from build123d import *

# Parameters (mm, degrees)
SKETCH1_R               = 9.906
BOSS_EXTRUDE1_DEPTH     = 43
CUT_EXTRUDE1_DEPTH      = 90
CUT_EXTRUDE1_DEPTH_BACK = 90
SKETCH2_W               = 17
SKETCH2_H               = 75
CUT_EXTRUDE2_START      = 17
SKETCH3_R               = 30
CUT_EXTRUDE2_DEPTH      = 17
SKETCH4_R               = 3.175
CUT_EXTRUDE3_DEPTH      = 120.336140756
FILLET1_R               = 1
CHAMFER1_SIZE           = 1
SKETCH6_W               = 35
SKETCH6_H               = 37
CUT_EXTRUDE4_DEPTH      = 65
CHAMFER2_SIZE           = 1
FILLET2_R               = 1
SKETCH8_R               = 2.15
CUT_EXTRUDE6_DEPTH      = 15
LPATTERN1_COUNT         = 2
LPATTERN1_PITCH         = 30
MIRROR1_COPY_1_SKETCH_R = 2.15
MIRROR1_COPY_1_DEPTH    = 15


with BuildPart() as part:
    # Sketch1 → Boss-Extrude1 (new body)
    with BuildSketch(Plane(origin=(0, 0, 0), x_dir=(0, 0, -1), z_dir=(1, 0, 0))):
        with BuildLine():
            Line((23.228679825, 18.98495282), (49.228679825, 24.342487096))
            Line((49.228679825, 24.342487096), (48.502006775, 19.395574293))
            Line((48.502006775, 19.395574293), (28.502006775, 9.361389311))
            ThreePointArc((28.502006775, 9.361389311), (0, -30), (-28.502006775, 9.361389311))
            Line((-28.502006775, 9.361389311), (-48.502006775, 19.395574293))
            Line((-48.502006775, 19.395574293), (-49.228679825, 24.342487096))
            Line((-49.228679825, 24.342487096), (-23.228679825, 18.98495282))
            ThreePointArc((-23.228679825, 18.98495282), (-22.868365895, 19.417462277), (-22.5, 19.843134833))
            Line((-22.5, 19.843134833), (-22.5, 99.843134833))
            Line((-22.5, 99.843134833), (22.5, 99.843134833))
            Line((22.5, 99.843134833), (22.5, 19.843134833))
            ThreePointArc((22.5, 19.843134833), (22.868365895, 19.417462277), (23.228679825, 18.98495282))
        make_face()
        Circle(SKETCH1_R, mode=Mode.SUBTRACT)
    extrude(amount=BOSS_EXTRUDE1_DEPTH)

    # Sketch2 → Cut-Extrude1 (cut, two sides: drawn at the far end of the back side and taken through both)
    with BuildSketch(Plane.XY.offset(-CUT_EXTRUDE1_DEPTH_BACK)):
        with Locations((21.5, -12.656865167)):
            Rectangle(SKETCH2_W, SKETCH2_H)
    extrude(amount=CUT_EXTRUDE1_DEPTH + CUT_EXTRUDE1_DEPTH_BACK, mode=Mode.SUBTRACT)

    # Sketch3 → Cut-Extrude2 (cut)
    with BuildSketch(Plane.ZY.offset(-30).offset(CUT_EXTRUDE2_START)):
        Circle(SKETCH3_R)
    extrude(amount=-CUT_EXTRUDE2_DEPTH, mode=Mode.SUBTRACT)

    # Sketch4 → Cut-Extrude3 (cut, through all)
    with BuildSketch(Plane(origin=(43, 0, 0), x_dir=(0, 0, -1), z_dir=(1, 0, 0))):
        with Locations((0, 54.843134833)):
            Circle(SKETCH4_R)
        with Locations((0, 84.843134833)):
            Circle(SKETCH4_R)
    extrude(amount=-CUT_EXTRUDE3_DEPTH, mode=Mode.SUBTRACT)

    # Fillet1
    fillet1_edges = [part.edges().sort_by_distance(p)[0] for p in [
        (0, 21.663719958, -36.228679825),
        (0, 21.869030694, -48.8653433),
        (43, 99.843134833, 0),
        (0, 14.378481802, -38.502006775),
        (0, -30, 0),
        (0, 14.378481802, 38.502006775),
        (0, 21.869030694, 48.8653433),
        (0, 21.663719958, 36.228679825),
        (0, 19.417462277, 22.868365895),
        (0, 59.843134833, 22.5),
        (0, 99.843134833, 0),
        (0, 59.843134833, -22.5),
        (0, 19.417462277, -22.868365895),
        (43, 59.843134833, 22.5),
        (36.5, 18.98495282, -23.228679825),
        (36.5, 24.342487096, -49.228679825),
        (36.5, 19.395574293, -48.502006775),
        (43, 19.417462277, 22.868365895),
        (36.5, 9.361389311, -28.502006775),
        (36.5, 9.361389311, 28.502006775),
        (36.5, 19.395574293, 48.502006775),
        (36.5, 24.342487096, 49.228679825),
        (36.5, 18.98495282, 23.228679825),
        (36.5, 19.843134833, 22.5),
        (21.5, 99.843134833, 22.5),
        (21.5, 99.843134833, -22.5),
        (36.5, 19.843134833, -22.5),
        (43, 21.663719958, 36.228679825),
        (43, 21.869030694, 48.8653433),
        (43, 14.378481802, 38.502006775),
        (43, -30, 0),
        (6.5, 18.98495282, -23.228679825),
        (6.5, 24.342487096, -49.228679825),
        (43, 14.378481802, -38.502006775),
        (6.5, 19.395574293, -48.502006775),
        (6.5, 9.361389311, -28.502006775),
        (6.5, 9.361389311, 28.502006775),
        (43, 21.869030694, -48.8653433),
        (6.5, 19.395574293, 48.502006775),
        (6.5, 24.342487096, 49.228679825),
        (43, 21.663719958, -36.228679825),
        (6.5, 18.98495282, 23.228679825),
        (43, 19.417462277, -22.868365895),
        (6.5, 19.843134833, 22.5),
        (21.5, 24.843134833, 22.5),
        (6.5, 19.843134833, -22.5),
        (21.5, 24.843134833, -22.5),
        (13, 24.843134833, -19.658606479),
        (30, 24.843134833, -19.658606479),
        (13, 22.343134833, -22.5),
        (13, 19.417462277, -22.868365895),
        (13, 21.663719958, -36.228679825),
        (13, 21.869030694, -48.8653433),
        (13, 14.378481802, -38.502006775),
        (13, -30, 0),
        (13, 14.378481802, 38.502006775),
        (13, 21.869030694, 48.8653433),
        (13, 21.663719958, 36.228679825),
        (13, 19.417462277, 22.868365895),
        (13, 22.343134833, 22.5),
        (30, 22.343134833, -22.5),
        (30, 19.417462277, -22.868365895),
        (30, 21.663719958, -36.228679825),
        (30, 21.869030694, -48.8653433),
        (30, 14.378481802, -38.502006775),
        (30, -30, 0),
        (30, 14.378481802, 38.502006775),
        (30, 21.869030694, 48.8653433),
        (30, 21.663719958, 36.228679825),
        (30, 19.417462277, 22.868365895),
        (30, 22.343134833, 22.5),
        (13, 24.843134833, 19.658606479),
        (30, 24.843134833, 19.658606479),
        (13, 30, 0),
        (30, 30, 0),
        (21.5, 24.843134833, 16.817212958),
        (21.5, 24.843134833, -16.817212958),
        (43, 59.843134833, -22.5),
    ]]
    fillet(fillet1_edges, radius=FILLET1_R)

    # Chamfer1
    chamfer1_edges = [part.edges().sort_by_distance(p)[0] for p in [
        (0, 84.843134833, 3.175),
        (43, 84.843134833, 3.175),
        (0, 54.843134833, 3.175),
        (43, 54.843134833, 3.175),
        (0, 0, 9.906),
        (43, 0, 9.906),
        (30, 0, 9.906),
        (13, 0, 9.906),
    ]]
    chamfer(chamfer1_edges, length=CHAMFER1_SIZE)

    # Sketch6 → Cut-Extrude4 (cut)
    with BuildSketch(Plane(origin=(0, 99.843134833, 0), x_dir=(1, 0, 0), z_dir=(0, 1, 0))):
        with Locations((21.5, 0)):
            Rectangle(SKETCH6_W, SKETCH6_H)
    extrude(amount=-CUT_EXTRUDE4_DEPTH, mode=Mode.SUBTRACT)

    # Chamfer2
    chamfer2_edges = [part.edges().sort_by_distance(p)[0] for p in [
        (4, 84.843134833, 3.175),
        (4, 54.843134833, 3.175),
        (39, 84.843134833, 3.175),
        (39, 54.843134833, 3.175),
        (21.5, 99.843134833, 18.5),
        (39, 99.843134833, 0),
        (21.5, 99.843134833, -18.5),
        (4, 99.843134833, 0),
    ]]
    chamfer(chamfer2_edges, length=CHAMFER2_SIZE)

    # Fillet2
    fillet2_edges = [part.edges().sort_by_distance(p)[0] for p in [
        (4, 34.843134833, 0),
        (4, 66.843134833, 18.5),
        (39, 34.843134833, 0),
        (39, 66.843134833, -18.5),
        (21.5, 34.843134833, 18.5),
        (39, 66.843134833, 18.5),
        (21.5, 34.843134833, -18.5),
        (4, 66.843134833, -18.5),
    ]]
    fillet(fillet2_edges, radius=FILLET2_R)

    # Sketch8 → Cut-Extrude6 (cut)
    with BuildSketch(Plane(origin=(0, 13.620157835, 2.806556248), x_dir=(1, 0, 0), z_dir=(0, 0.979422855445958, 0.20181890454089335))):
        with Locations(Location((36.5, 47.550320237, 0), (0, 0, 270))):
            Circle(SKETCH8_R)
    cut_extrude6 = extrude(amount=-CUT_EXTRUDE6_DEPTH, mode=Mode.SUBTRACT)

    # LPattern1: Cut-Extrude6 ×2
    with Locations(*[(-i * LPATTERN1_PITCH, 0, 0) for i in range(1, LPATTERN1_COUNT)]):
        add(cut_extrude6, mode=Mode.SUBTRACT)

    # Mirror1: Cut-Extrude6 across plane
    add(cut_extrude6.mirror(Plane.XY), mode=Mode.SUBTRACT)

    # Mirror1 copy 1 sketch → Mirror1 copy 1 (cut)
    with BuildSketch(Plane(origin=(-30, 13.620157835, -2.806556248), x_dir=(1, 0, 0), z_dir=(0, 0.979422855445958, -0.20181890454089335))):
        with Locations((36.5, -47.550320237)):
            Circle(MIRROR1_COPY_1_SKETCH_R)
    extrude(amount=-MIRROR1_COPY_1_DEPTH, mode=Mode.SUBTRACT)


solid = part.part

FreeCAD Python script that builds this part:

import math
import FreeCAD as App
import Part
import Sketcher


def edges_at(feature, points):
    """Names of the edges that pass closest to the given points."""
    edges = feature.Shape.Edges
    near = lambda p: min(range(len(edges)), key=lambda i: edges[i].distToShape(Part.Vertex(*p))[0])
    return sorted({f"Edge{near(p) + 1}" for p in points})


def add_polygon(sketch, points):
    """Adds a closed chain of lines whose ends are joined by coincident constraints."""
    first, n = sketch.GeometryCount, len(points)
    for a, b in zip(points, points[1:] + points[:1]):
        sketch.addGeometry(Part.LineSegment(App.Vector(*a, 0), App.Vector(*b, 0)), False)
    for i in range(n):
        sketch.addConstraint(Sketcher.Constraint("Coincident", first + i, 2, first + (i + 1) % n, 1))

doc = App.newDocument("Part")
body = doc.addObject("PartDesign::Body", "Body")

sketch1 = doc.addObject("Sketcher::SketchObject", "Sketch")
body.addObject(sketch1)
sketch1.AttachmentSupport = (doc.YZ_Plane, [""])
sketch1.MapMode = "FlatFace"
sketch1.addGeometry([
    Part.LineSegment(App.Vector(24.3, -49.2, 0), App.Vector(19, -23.2, 0)),
    Part.ArcOfCircle(Part.Circle(App.Vector(0, 0, 0), App.Vector(0, 0, 1), 30), math.radians(-50.74), math.radians(-48.59)),
    Part.LineSegment(App.Vector(19.8, -22.5, 0), App.Vector(99.8, -22.5, 0)),
    Part.LineSegment(App.Vector(99.8, -22.5, 0), App.Vector(99.8, 22.5, 0)),
    Part.LineSegment(App.Vector(99.8, 22.5, 0), App.Vector(19.8, 22.5, 0)),
    Part.ArcOfCircle(Part.Circle(App.Vector(0, 0, 0), App.Vector(0, 0, 1), 30), math.radians(48.59), math.radians(50.74)),
    Part.LineSegment(App.Vector(19, 23.2, 0), App.Vector(24.3, 49.2, 0)),
    Part.LineSegment(App.Vector(24.3, 49.2, 0), App.Vector(19.4, 48.5, 0)),
    Part.LineSegment(App.Vector(19.4, 48.5, 0), App.Vector(9.4, 28.5, 0)),
    Part.ArcOfCircle(Part.Circle(App.Vector(0, 0, 0), App.Vector(0, 0, 1), 30), math.radians(72), math.radians(288)),
    Part.LineSegment(App.Vector(9.4, -28.5, 0), App.Vector(19.4, -48.5, 0)),
    Part.LineSegment(App.Vector(19.4, -48.5, 0), App.Vector(24.3, -49.2, 0)),
    Part.Circle(App.Vector(0, 0, 0), App.Vector(0, 0, 1), 9.9),
], False)
sketch1.addConstraint([
    Sketcher.Constraint("Coincident", 0, 2, 1, 1),
    Sketcher.Constraint("Coincident", 1, 2, 2, 1),
    Sketcher.Constraint("Coincident", 2, 2, 3, 1),
    Sketcher.Constraint("Coincident", 3, 2, 4, 1),
    Sketcher.Constraint("Coincident", 4, 2, 5, 1),
    Sketcher.Constraint("Coincident", 5, 2, 6, 1),
    Sketcher.Constraint("Coincident", 6, 2, 7, 1),
    Sketcher.Constraint("Coincident", 7, 2, 8, 1),
    Sketcher.Constraint("Coincident", 8, 2, 9, 1),
    Sketcher.Constraint("Coincident", 9, 2, 10, 1),
    Sketcher.Constraint("Coincident", 10, 2, 11, 1),
    Sketcher.Constraint("Coincident", 11, 2, 0, 1),
    Sketcher.Constraint("Horizontal", 2),
    Sketcher.Constraint("Vertical", 3),
    Sketcher.Constraint("Horizontal", 4),
    Sketcher.Constraint("Coincident", 1, 3, -1, 1),
    Sketcher.Constraint("Coincident", 5, 3, -1, 1),
    Sketcher.Constraint("Coincident", 9, 3, -1, 1),
    Sketcher.Constraint("Coincident", 12, 3, -1, 1),
    Sketcher.Constraint("Equal", 1, 5),
    Sketcher.Constraint("Equal", 5, 9),
    Sketcher.Constraint("Symmetric", 7, 2, 10, 2, -1),
    Sketcher.Constraint("Symmetric", 6, 2, 11, 2, -1),
    Sketcher.Constraint("Vertical", 1, 2, 4, 2),
    Sketcher.Constraint("Vertical", 0, 2, 5, 2),
    Sketcher.Constraint("Vertical", 8, 2, 9, 2),
    Sketcher.Constraint("Radius", 1, 30.000001),
    Sketcher.Constraint("DistanceX", 2, 1, 2, 2, 80.0),
    Sketcher.Constraint("DistanceY", 3, 1, 3, 2, 45.0),
    Sketcher.Constraint("Distance", 7, 5.0),
    Sketcher.Constraint("Diameter", 12, 19.812),
    Sketcher.Constraint("DistanceY", 5, 2, 6, 2, 26.0),
    Sketcher.Constraint("DistanceY", 8, 2, 7, 2, 20.0),
    Sketcher.Constraint("Distance", 8, 22.375989),
    Sketcher.Constraint("DistanceY", 0, 2, -1, 1, 23.22868),
    Sketcher.Constraint("DistanceX", -1, 1, 8, 2, 9.361389),
])
pad1 = doc.addObject("PartDesign::Pad", "Pad")
body.addObject(pad1)
pad1.Profile = sketch1
pad1.Length = 43

sketch2 = doc.addObject("Sketcher::SketchObject", "Sketch001")
body.addObject(sketch2)
sketch2.AttachmentSupport = (doc.XY_Plane, [""])
sketch2.MapMode = "FlatFace"
add_polygon(sketch2, [(13, 25), (13, -50), (30, -50), (30, 25)])
sketch2.addConstraint([
    Sketcher.Constraint("Vertical", 0),
    Sketcher.Constraint("Horizontal", 1),
    Sketcher.Constraint("Vertical", 2),
    Sketcher.Constraint("Horizontal", 3),
    Sketcher.Constraint("DistanceX", 1, 1, 1, 2, 17.0),
    Sketcher.Constraint("DistanceY", 0, 2, 0, 1, 75.0),
    Sketcher.Constraint("DistanceX", -1, 1, 0, 2, 13.0),
    Sketcher.Constraint("DistanceY", 0, 2, -1, 1, 50.156865),
])
pocket1 = doc.addObject("PartDesign::Pocket", "Pocket")
body.addObject(pocket1)
pocket1.Profile = sketch2
pocket1.Type = "ThroughAll"
pocket1.Midplane = True

sketch3 = doc.addObject("Sketcher::SketchObject", "Sketch002")
body.addObject(sketch3)
sketch3.AttachmentSupport = (doc.YZ_Plane, [""])
sketch3.MapMode = "FlatFace"
sketch3.AttachmentOffset = App.Placement(App.Vector(0, 0, 13), App.Rotation())
sketch3.addGeometry(Part.Circle(App.Vector(0, 0, 0), App.Vector(0, 0, 1), 30), False)
sketch3.addConstraint([
    Sketcher.Constraint("Coincident", 0, 3, -1, 1),
    Sketcher.Constraint("Diameter", 0, 60.0),
])
pocket2 = doc.addObject("PartDesign::Pocket", "Pocket001")
body.addObject(pocket2)
pocket2.Profile = sketch3
pocket2.Length = 17
pocket2.Reversed = True

sketch4 = doc.addObject("Sketcher::SketchObject", "Sketch003")
body.addObject(sketch4)
sketch4.AttachmentSupport = (doc.YZ_Plane, [""])
sketch4.MapMode = "FlatFace"
sketch4.AttachmentOffset = App.Placement(App.Vector(0, 0, 43), App.Rotation())
sketch4.addGeometry([
    Part.Circle(App.Vector(54.8, 0, 0), App.Vector(0, 0, 1), 3.2),
    Part.Circle(App.Vector(84.8, 0, 0), App.Vector(0, 0, 1), 3.2),
], False)
sketch4.addConstraint([
    Sketcher.Constraint("Equal", 0, 1),
    Sketcher.Constraint("PointOnObject", 0, 3, -1),
    Sketcher.Constraint("PointOnObject", 1, 3, -1),
    Sketcher.Constraint("Diameter", 0, 6.35),
    Sketcher.Constraint("DistanceX", 0, 3, 1, 3, 30.0),
    Sketcher.Constraint("DistanceX", -1, 1, 0, 3, 54.843135),
])
pocket3 = doc.addObject("PartDesign::Pocket", "Pocket002")
body.addObject(pocket3)
pocket3.Profile = sketch4
pocket3.Type = "ThroughAll"
doc.recompute()

fillet = doc.addObject("PartDesign::Fillet", "Fillet")
body.addObject(fillet)
fillet.Base = (pocket3, edges_at(pocket3, [
    (0, 21.664, -36.229),
    (0, 21.869, -48.865),
    (43, 99.843, 0),
    (0, 14.378, -38.502),
    (0, -30, 0),
    (0, 14.378, 38.502),
    (0, 21.869, 48.865),
    (0, 21.664, 36.229),
    (0, 19.417, 22.868),
    (0, 59.843, 22.5),
    (0, 99.843, 0),
    (0, 59.843, -22.5),
    (0, 19.417, -22.868),
    (43, 59.843, 22.5),
    (36.5, 18.985, -23.229),
    (36.5, 24.342, -49.229),
    (36.5, 19.396, -48.502),
    (43, 19.417, 22.868),
    (36.5, 9.361, -28.502),
    (36.5, 9.361, 28.502),
    (36.5, 19.396, 48.502),
    (36.5, 24.342, 49.229),
    (36.5, 18.985, 23.229),
    (36.5, 19.843, 22.5),
    (21.5, 99.843, 22.5),
    (21.5, 99.843, -22.5),
    (36.5, 19.843, -22.5),
    (43, 21.664, 36.229),
    (43, 21.869, 48.865),
    (43, 14.378, 38.502),
    (43, -30, 0),
    (6.5, 18.985, -23.229),
    (6.5, 24.342, -49.229),
    (43, 14.378, -38.502),
    (6.5, 19.396, -48.502),
    (6.5, 9.361, -28.502),
    (6.5, 9.361, 28.502),
    (43, 21.869, -48.865),
    (6.5, 19.396, 48.502),
    (6.5, 24.342, 49.229),
    (43, 21.664, -36.229),
    (6.5, 18.985, 23.229),
    (43, 19.417, -22.868),
    (6.5, 19.843, 22.5),
    (21.5, 24.843, 22.5),
    (6.5, 19.843, -22.5),
    (21.5, 24.843, -22.5),
    (13, 24.843, -19.659),
    (30, 24.843, -19.659),
    (13, 22.343, -22.5),
    (13, 19.417, -22.868),
    (13, 21.664, -36.229),
    (13, 21.869, -48.865),
    (13, 14.378, -38.502),
    (13, -30, 0),
    (13, 14.378, 38.502),
    (13, 21.869, 48.865),
    (13, 21.664, 36.229),
    (13, 19.417, 22.868),
    (13, 22.343, 22.5),
    (30, 22.343, -22.5),
    (30, 19.417, -22.868),
    (30, 21.664, -36.229),
    (30, 21.869, -48.865),
    (30, 14.378, -38.502),
    (30, -30, 0),
    (30, 14.378, 38.502),
    (30, 21.869, 48.865),
    (30, 21.664, 36.229),
    (30, 19.417, 22.868),
    (30, 22.343, 22.5),
    (13, 24.843, 19.659),
    (30, 24.843, 19.659),
    (13, 30, 0),
    (30, 30, 0),
    (21.5, 24.843, 16.817),
    (21.5, 24.843, -16.817),
    (43, 59.843, -22.5),
]))
fillet.Radius = 1
doc.recompute()

chamfer = doc.addObject("PartDesign::Chamfer", "Chamfer")
body.addObject(chamfer)
chamfer.Base = (fillet, edges_at(fillet, [
    (0, 84.843, 3.175),
    (43, 84.843, 3.175),
    (0, 54.843, 3.175),
    (43, 54.843, 3.175),
    (0, 0, 9.906),
    (43, 0, 9.906),
    (30, 0, 9.906),
    (13, 0, 9.906),
]))
chamfer.Size = 1

sketch5 = doc.addObject("Sketcher::SketchObject", "Sketch004")
body.addObject(sketch5)
sketch5.AttachmentSupport = (doc.XZ_Plane, [""])
sketch5.MapMode = "FlatFace"
sketch5.AttachmentOffset = App.Placement(App.Vector(0, 0, -99.843135), App.Rotation())
add_polygon(sketch5, [(4, -18), (4, 18), (39, 18), (39, -18)])
sketch5.addConstraint([
    Sketcher.Constraint("Vertical", 0),
    Sketcher.Constraint("Horizontal", 1),
    Sketcher.Constraint("Vertical", 2),
    Sketcher.Constraint("Horizontal", 3),
    Sketcher.Constraint("DistanceX", 1, 1, 1, 2, 35.0),
    Sketcher.Constraint("DistanceY", 0, 1, 0, 2, 37.0),
    Sketcher.Constraint("DistanceX", -1, 1, 0, 2, 4.0),
    Sketcher.Constraint("DistanceY", -1, 1, 0, 2, 18.5),
])
pocket4 = doc.addObject("PartDesign::Pocket", "Pocket003")
body.addObject(pocket4)
pocket4.Profile = sketch5
pocket4.Length = 65
pocket4.Reversed = True
doc.recompute()

chamfer2 = doc.addObject("PartDesign::Chamfer", "Chamfer001")
body.addObject(chamfer2)
chamfer2.Base = (pocket4, edges_at(pocket4, [
    (4, 84.843, 3.175),
    (4, 54.843, 3.175),
    (39, 84.843, 3.175),
    (39, 54.843, 3.175),
    (21.5, 99.843, 18.5),
    (39, 99.843, 0),
    (21.5, 99.843, -18.5),
    (4, 99.843, 0),
]))
chamfer2.Size = 1
doc.recompute()

fillet2 = doc.addObject("PartDesign::Fillet", "Fillet001")
body.addObject(fillet2)
fillet2.Base = (chamfer2, edges_at(chamfer2, [
    (4, 34.843, 0),
    (4, 66.843, 18.5),
    (39, 34.843, 0),
    (39, 66.843, -18.5),
    (21.5, 34.843, 18.5),
    (39, 66.843, 18.5),
    (21.5, 34.843, -18.5),
    (4, 66.843, -18.5),
]))
fillet2.Radius = 1

sketch6 = doc.addObject("Sketcher::SketchObject", "Sketch005")
body.addObject(sketch6)
sketch6.Placement = App.Placement(App.Vector(0, 13.620158, 2.806556), App.Rotation(App.Vector(1, 0, 0), App.Vector(0, 0.201818905, -0.979422855), App.Vector(0, 0.979422855, 0.201818905), "ZXY"))
sketch6.addGeometry(Part.Circle(App.Vector(36.5, 47.6, 0), App.Vector(0, 0, 1), 2.1), False)
sketch6.addConstraint([
    Sketcher.Constraint("Diameter", 0, 4.3),
    Sketcher.Constraint("DistanceX", -1, 1, 0, 3, 36.5),
    Sketcher.Constraint("DistanceY", -1, 1, 0, 3, 47.55032),
])
pocket5 = doc.addObject("PartDesign::Pocket", "Pocket004")
body.addObject(pocket5)
pocket5.Profile = sketch6
pocket5.Length = 15
doc.recompute()

linearpattern = doc.addObject("PartDesign::LinearPattern", "LinearPattern")
body.addObject(linearpattern)
linearpattern.Originals = [pocket5]
linearpattern.Direction = (doc.X_Axis, [""])
linearpattern.Mode = "offset"
linearpattern.Offset = 30
linearpattern.Occurrences = 2
linearpattern.Reversed = True
body.Tip = linearpattern
doc.recompute()

mirrored = doc.addObject("PartDesign::Mirrored", "Mirrored")
body.addObject(mirrored)
mirrored.Originals = [pocket5]
mirrored.MirrorPlane = (doc.XY_Plane, [""])
body.Tip = mirrored

sketch7 = doc.addObject("Sketcher::SketchObject", "Sketch006")
body.addObject(sketch7)
sketch7.Placement = App.Placement(App.Vector(-30, 13.620158, -2.806556), App.Rotation(App.Vector(1, 0, 0), App.Vector(0, -0.201818905, -0.979422855), App.Vector(0, 0.979422855, -0.201818905), "ZXY"))
sketch7.addGeometry(Part.Circle(App.Vector(36.5, -47.6, 0), App.Vector(0, 0, 1), 2.1), False)
sketch7.addConstraint([
    Sketcher.Constraint("Diameter", 0, 4.3),
    Sketcher.Constraint("DistanceX", -1, 1, 0, 3, 36.5),
    Sketcher.Constraint("DistanceY", 0, 3, -1, 1, 47.55032),
])
pocket6 = doc.addObject("PartDesign::Pocket", "Pocket005")
body.addObject(pocket6)
pocket6.Profile = sketch7
pocket6.Length = 15

doc.recompute()
